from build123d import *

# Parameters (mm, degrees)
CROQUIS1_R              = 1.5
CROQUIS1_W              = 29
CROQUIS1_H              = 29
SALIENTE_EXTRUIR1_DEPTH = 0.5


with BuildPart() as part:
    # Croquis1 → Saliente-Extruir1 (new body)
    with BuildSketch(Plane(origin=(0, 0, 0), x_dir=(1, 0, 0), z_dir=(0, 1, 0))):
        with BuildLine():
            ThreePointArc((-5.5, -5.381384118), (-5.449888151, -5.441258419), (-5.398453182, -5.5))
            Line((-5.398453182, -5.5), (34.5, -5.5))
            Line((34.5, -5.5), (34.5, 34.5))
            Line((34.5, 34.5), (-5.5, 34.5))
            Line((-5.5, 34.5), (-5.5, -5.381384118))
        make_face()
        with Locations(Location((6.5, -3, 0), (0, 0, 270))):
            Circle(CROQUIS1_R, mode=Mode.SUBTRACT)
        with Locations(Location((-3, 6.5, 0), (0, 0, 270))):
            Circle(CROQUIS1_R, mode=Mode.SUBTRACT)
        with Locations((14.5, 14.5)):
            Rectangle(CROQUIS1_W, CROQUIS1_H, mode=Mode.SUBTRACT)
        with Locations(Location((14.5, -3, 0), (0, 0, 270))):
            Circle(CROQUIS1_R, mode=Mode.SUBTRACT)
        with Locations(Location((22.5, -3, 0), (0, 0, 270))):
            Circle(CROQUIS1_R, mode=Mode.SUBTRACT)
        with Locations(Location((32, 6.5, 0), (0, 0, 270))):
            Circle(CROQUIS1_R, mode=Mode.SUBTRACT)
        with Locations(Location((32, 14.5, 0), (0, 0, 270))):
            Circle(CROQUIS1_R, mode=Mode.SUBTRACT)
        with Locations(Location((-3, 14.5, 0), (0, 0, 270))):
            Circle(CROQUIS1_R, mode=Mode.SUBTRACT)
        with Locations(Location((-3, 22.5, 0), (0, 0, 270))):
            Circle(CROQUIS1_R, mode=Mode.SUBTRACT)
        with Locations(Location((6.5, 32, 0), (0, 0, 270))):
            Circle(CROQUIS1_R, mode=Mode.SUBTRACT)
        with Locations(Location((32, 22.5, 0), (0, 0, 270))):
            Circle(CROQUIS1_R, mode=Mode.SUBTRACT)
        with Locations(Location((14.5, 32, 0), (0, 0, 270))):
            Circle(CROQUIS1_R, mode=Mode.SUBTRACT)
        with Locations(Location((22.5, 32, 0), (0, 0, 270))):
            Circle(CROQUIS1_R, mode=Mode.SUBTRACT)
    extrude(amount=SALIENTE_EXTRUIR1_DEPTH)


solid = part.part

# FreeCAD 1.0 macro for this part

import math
import FreeCAD as App
import Part
import Sketcher
from FreeCAD import Vector

doc = App.newDocument("Part")
body = doc.addObject("PartDesign::Body", "Body")

# Sketch on XZ plane
sketch1 = doc.addObject("Sketcher::SketchObject", "Sketch")
body.addObject(sketch1)
sketch1.AttachmentSupport = (doc.XZ_Plane, [""])
sketch1.MapMode = "FlatFace"
sketch1.addGeometry([
    Part.ArcOfCircle(Part.Circle(Vector(-2.79, 3.17, 0), Vector(0, 0, 1), 3.5), math.radians(138.16), math.radians(140.71)),  # 0
    Part.LineSegment(Vector(-5.4, 5.5, 0), Vector(34.5, 5.5, 0)),  # 1
    Part.LineSegment(Vector(34.5, 5.5, 0), Vector(34.5, -34.5, 0)),  # 2
    Part.LineSegment(Vector(34.5, -34.5, 0), Vector(-5.5, -34.5, 0)),  # 3
    Part.LineSegment(Vector(-5.5, -34.5, 0), Vector(-5.5, 5.38, 0)),  # 4
    Part.Circle(Vector(6.5, 3, 0), Vector(0, 0, 1), 1.5),  # 5
    Part.Circle(Vector(-3, -6.5, 0), Vector(0, 0, 1), 1.5),  # 6
    Part.Circle(Vector(14.5, 3, 0), Vector(0, 0, 1), 1.5),  # 7
    Part.Circle(Vector(22.5, 3, 0), Vector(0, 0, 1), 1.5),  # 8
    Part.Circle(Vector(32, -6.5, 0), Vector(0, 0, 1), 1.5),  # 9
    Part.Circle(Vector(-3, -14.5, 0), Vector(0, 0, 1), 1.5),  # 10
    Part.Circle(Vector(-3, -22.5, 0), Vector(0, 0, 1), 1.5),  # 11
    Part.Circle(Vector(6.5, -32, 0), Vector(0, 0, 1), 1.5),  # 12
    Part.LineSegment(Vector(29, 0, 0), Vector(0, 0, 0)),  # 13
    Part.LineSegment(Vector(0, 0, 0), Vector(0, -29, 0)),  # 14
    Part.LineSegment(Vector(0, -29, 0), Vector(29, -29, 0)),  # 15
    Part.LineSegment(Vector(29, -29, 0), Vector(29, 0, 0)),  # 16
    Part.Circle(Vector(32, -14.5, 0), Vector(0, 0, 1), 1.5),  # 17
    Part.Circle(Vector(32, -22.5, 0), Vector(0, 0, 1), 1.5),  # 18
    Part.Circle(Vector(14.5, -32, 0), Vector(0, 0, 1), 1.5),  # 19
    Part.Circle(Vector(22.5, -32, 0), Vector(0, 0, 1), 1.5),  # 20
], False)
sketch1.addConstraint([
    Sketcher.Constraint("Coincident", 0, 1, 1, 1),
    Sketcher.Constraint("Coincident", 1, 2, 2, 1),
    Sketcher.Constraint("Coincident", 2, 2, 3, 1),
    Sketcher.Constraint("Coincident", 3, 2, 4, 1),
    Sketcher.Constraint("Coincident", 4, 2, 0, 2),
    Sketcher.Constraint("Coincident", 13, 2, 14, 1),
    Sketcher.Constraint("Coincident", 14, 2, 15, 1),
    Sketcher.Constraint("Coincident", 15, 2, 16, 1),
    Sketcher.Constraint("Coincident", 16, 2, 13, 1),
    Sketcher.Constraint("Horizontal", 1),
    Sketcher.Constraint("Vertical", 2),
    Sketcher.Constraint("Horizontal", 3),
    Sketcher.Constraint("Vertical", 4),
    Sketcher.Constraint("Horizontal", 13),
    Sketcher.Constraint("Vertical", 14),
    Sketcher.Constraint("Horizontal", 15),
    Sketcher.Constraint("Vertical", 16),
    Sketcher.Constraint("Coincident", 13, 2, -1, 1),
    Sketcher.Constraint("Equal", 5, 6),
    Sketcher.Constraint("Equal", 6, 7),
    Sketcher.Constraint("Equal", 7, 8),
    Sketcher.Constraint("Equal", 8, 9),
    Sketcher.Constraint("Equal", 9, 10),
    Sketcher.Constraint("Equal", 10, 11),
    Sketcher.Constraint("Equal", 11, 12),
    Sketcher.Constraint("Equal", 12, 17),
    Sketcher.Constraint("Equal", 17, 18),
    Sketcher.Constraint("Equal", 18, 19),
    Sketcher.Constraint("Equal", 19, 20),
    Sketcher.Constraint("Horizontal", 5, 3, 7, 3),
    Sketcher.Constraint("Horizontal", 7, 3, 8, 3),
    Sketcher.Constraint("Horizontal", 6, 3, 9, 3),
    Sketcher.Constraint("Horizontal", 10, 3, 17, 3),
    Sketcher.Constraint("Horizontal", 11, 3, 18, 3),
    Sketcher.Constraint("Horizontal", 12, 3, 19, 3),
    Sketcher.Constraint("Horizontal", 19, 3, 20, 3),
    Sketcher.Constraint("Vertical", 6, 3, 10, 3),
    Sketcher.Constraint("Vertical", 10, 3, 11, 3),
    Sketcher.Constraint("Vertical", 5, 3, 12, 3),
    Sketcher.Constraint("Vertical", 9, 3, 17, 3),
    Sketcher.Constraint("Vertical", 17, 3, 18, 3),
    Sketcher.Constraint("Vertical", 7, 3, 19, 3),
    Sketcher.Constraint("Vertical", 8, 3, 20, 3),
    Sketcher.Constraint("Equal", 3, 2),
    Sketcher.Constraint("Equal", 15, 14),
    Sketcher.Constraint("Diameter", 5, 3.0),
    Sketcher.Constraint("DistanceX", 3, 2, 3, 1, 40.0),
    Sketcher.Constraint("DistanceX", 13, 2, 13, 1, 29.0),
    Sketcher.Constraint("DistanceY", -1, 1, 5, 3, 3.0),
    Sketcher.Constraint("DistanceX", 6, 3, -1, 1, 3.0),
    Sketcher.Constraint("DistanceX", -1, 1, 9, 3, 32.0),
    Sketcher.Constraint("DistanceY", 12, 3, -1, 1, 32.0),
    Sketcher.Constraint("DistanceX", 5, 3, 7, 3, 8.0),
    Sketcher.Constraint("DistanceX", 7, 3, 8, 3, 8.0),
    Sketcher.Constraint("DistanceY", 10, 3, 6, 3, 8.0),
    Sketcher.Constraint("DistanceY", 11, 3, 10, 3, 8.0),
    Sketcher.Constraint("DistanceY", 6, 3, 0, 1, 12.0),
    Sketcher.Constraint("DistanceX", 8, 3, 1, 2, 12.0),
    Sketcher.Constraint("DistanceX", -1, 1, 5, 3, 6.5),
    Sketcher.Constraint("DistanceY", 6, 3, -1, 1, 6.5),
    Sketcher.Constraint("Radius", 0, 3.499998),
    Sketcher.Constraint("DistanceX", 1, 1, 1, 2, 39.898453),
    Sketcher.Constraint("DistanceY", 4, 1, 4, 2, 39.881384),
])
pad1 = doc.addObject("PartDesign::Pad", "Pad")
body.addObject(pad1)
pad1.Profile = sketch1
pad1.Length = 0.5
pad1.Reversed = True

doc.recompute()
